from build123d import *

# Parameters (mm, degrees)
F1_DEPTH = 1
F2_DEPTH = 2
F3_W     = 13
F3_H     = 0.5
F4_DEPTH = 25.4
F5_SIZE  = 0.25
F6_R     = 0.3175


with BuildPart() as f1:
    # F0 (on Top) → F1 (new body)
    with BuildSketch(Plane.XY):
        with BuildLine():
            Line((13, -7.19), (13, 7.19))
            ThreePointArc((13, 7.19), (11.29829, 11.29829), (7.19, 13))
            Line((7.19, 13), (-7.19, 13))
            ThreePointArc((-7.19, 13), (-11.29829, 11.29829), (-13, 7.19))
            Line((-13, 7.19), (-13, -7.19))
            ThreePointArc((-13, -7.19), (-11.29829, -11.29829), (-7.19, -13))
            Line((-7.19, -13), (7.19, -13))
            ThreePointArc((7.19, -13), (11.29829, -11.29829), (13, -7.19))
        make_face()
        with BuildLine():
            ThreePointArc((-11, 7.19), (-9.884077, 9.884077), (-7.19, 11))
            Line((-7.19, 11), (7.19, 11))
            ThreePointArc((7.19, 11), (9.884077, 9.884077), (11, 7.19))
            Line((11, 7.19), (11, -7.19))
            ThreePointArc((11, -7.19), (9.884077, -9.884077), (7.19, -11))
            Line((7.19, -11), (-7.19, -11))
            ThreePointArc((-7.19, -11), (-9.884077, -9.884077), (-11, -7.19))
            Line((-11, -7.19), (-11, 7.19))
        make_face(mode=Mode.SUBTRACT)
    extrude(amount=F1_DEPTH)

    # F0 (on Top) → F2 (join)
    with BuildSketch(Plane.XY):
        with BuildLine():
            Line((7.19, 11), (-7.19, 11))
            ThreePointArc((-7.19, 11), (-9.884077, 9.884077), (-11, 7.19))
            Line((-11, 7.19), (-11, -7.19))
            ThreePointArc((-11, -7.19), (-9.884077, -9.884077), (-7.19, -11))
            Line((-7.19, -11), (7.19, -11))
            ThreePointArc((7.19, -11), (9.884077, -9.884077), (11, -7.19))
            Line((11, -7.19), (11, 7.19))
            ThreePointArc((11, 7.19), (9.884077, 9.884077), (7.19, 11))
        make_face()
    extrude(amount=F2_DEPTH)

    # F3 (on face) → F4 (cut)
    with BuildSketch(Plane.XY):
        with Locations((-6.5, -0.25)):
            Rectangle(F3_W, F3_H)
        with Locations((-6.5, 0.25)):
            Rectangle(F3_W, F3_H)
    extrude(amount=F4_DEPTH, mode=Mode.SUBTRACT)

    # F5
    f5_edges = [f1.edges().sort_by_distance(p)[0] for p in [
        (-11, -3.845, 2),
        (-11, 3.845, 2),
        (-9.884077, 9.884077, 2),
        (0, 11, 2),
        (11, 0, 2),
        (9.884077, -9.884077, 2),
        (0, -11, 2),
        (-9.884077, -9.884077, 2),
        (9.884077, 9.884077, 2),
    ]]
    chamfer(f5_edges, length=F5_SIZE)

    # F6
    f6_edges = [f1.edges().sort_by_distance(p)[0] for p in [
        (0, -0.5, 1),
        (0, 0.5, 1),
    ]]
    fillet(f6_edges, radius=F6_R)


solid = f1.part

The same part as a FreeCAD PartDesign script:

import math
import FreeCAD as App
import Part
import Sketcher

V = App.Vector


def edges_at(feature, points):
    """Names of the edges that pass closest to the given points."""
    edges = feature.Shape.Edges
    near = lambda p: min(range(len(edges)), key=lambda i: edges[i].distToShape(Part.Vertex(*p))[0])
    return sorted({f"Edge{near(p) + 1}" for p in points})


def add_polygon(sketch, points):
    """Adds a closed chain of lines whose ends are joined by coincident constraints."""
    first, n = sketch.GeometryCount, len(points)
    for a, b in zip(points, points[1:] + points[:1]):
        sketch.addGeometry(Part.LineSegment(App.Vector(*a, 0), App.Vector(*b, 0)), False)
    for i in range(n):
        sketch.addConstraint(Sketcher.Constraint("Coincident", first + i, 2, first + (i + 1) % n, 1))

doc = App.newDocument("Part")
body = doc.addObject("PartDesign::Body", "Body")

# Sketch on XY plane
sketch1 = doc.addObject("Sketcher::SketchObject", "Sketch")
body.addObject(sketch1)
sketch1.AttachmentSupport = (doc.XY_Plane, [""])
sketch1.MapMode = "FlatFace"
sketch1.addGeometry([
    Part.LineSegment(V(13, -7.19, 0), V(13, 7.19, 0)),  # 0
    Part.ArcOfCircle(Part.Circle(V(7.189999, 7.189999, 0), V(0, 0, 1), 5.810001), math.radians(0.000013), math.radians(89.999987)),  # 1
    Part.LineSegment(V(7.19, 13, 0), V(-7.19, 13, 0)),  # 2
    Part.ArcOfCircle(Part.Circle(V(-7.189999, 7.189999, 0), V(0, 0, 1), 5.810001), math.radians(90.000013), math.radians(179.999987)),  # 3
    Part.LineSegment(V(-13, 7.19, 0), V(-13, -7.19, 0)),  # 4
    Part.ArcOfCircle(Part.Circle(V(-7.189999, -7.189999, 0), V(0, 0, 1), 5.810001), math.radians(-179.999987), math.radians(-90.000013)),  # 5
    Part.LineSegment(V(-7.19, -13, 0), V(7.19, -13, 0)),  # 6
    Part.ArcOfCircle(Part.Circle(V(7.189999, -7.189999, 0), V(0, 0, 1), 5.810001), math.radians(-89.999987), math.radians(-0.000013)),  # 7
    Part.LineSegment(V(-11, -7.19, 0), V(-11, 7.19, 0)),  # 8
    Part.ArcOfCircle(Part.Circle(V(-7.190001, 7.190001, 0), V(0, 0, 1), 3.809999), math.radians(89.999992), math.radians(180.000008)),  # 9
    Part.LineSegment(V(-7.19, 11, 0), V(7.19, 11, 0)),  # 10
    Part.ArcOfCircle(Part.Circle(V(7.190001, 7.190001, 0), V(0, 0, 1), 3.809999), math.radians(-0.000008), math.radians(90.000008)),  # 11
    Part.LineSegment(V(11, 7.19, 0), V(11, -7.19, 0)),  # 12
    Part.ArcOfCircle(Part.Circle(V(7.190001, -7.190001, 0), V(0, 0, 1), 3.809999), math.radians(-90.000008), math.radians(0.000008)),  # 13
    Part.LineSegment(V(7.19, -11, 0), V(-7.19, -11, 0)),  # 14
    Part.ArcOfCircle(Part.Circle(V(-7.190001, -7.190001, 0), V(0, 0, 1), 3.809999), math.radians(179.999992), math.radians(270.000008)),  # 15
], False)
sketch1.addConstraint([
    Sketcher.Constraint("Tangent", 0, 2, 1, 1),
    Sketcher.Constraint("Tangent", 1, 2, 2, 1),
    Sketcher.Constraint("Tangent", 2, 2, 3, 1),
    Sketcher.Constraint("Tangent", 3, 2, 4, 1),
    Sketcher.Constraint("Tangent", 4, 2, 5, 1),
    Sketcher.Constraint("Tangent", 5, 2, 6, 1),
    Sketcher.Constraint("Tangent", 6, 2, 7, 1),
    Sketcher.Constraint("Tangent", 7, 2, 0, 1),
    Sketcher.Constraint("Tangent", 8, 2, 9, 2),
    Sketcher.Constraint("Tangent", 9, 1, 10, 1),
    Sketcher.Constraint("Tangent", 10, 2, 11, 2),
    Sketcher.Constraint("Tangent", 11, 1, 12, 1),
    Sketcher.Constraint("Tangent", 12, 2, 13, 2),
    Sketcher.Constraint("Tangent", 13, 1, 14, 1),
    Sketcher.Constraint("Tangent", 14, 2, 15, 2),
    Sketcher.Constraint("Tangent", 15, 1, 8, 1),
    Sketcher.Constraint("Vertical", 0),
    Sketcher.Constraint("Horizontal", 2),
    Sketcher.Constraint("Vertical", 4),
    Sketcher.Constraint("Horizontal", 6),
    Sketcher.Constraint("Vertical", 8),
    Sketcher.Constraint("Horizontal", 10),
    Sketcher.Constraint("Vertical", 12),
    Sketcher.Constraint("Horizontal", 14),
    Sketcher.Constraint("Coincident", 9, 3, 3, 3),
    Sketcher.Constraint("Coincident", 11, 3, 1, 3),
    Sketcher.Constraint("Coincident", 13, 3, 7, 3),
    Sketcher.Constraint("Equal", 1, 3),
    Sketcher.Constraint("Equal", 3, 5),
    Sketcher.Constraint("Equal", 5, 7),
    Sketcher.Constraint("Equal", 13, 15),
    Sketcher.Constraint("Symmetric", 1, 3, 5, 3, -1, 1),
    Sketcher.Constraint("Equal", 14, 0),
    Sketcher.Constraint("Radius", 1, 5.810001),
    Sketcher.Constraint("Radius", 9, 3.809999),
    Sketcher.Constraint("DistanceX", -1, 1, 0, 2, 13.0),
])
pad1 = doc.addObject("PartDesign::Pad", "Pad")
body.addObject(pad1)
pad1.Profile = sketch1
pad1.Length = 1

# Sketch on XY plane
sketch2 = doc.addObject("Sketcher::SketchObject", "Sketch001")
body.addObject(sketch2)
sketch2.AttachmentSupport = (doc.XY_Plane, [""])
sketch2.MapMode = "FlatFace"
sketch2.addGeometry([
    Part.LineSegment(V(7.19, 11, 0), V(-7.19, 11, 0)),  # 0
    Part.ArcOfCircle(Part.Circle(V(-7.190001, 7.190001, 0), V(0, 0, 1), 3.809999), math.radians(89.999992), math.radians(180.000008)),  # 1
    Part.LineSegment(V(-11, 7.19, 0), V(-11, -7.19, 0)),  # 2
    Part.ArcOfCircle(Part.Circle(V(-7.190001, -7.190001, 0), V(0, 0, 1), 3.809999), math.radians(179.999992), math.radians(270.000008)),  # 3
    Part.LineSegment(V(-7.19, -11, 0), V(7.19, -11, 0)),  # 4
    Part.ArcOfCircle(Part.Circle(V(7.190001, -7.190001, 0), V(0, 0, 1), 3.809999), math.radians(-90.000008), math.radians(0.000008)),  # 5
    Part.LineSegment(V(11, -7.19, 0), V(11, 7.19, 0)),  # 6
    Part.ArcOfCircle(Part.Circle(V(7.190001, 7.190001, 0), V(0, 0, 1), 3.809999), math.radians(-0.000008), math.radians(90.000008)),  # 7
], False)
sketch2.addConstraint([
    Sketcher.Constraint("Tangent", 0, 2, 1, 1),
    Sketcher.Constraint("Tangent", 1, 2, 2, 1),
    Sketcher.Constraint("Tangent", 2, 2, 3, 1),
    Sketcher.Constraint("Tangent", 3, 2, 4, 1),
    Sketcher.Constraint("Tangent", 4, 2, 5, 1),
    Sketcher.Constraint("Tangent", 5, 2, 6, 1),
    Sketcher.Constraint("Tangent", 6, 2, 7, 1),
    Sketcher.Constraint("Tangent", 7, 2, 0, 1),
    Sketcher.Constraint("Horizontal", 0),
    Sketcher.Constraint("Vertical", 2),
    Sketcher.Constraint("Horizontal", 4),
    Sketcher.Constraint("Vertical", 6),
    Sketcher.Constraint("Equal", 1, 3),
    Sketcher.Constraint("Equal", 3, 5),
    Sketcher.Constraint("Equal", 5, 7),
    Sketcher.Constraint("Symmetric", 1, 3, 5, 3, -1, 1),
    Sketcher.Constraint("Equal", 4, 2),
    Sketcher.Constraint("Radius", 1, 3.809999),
    Sketcher.Constraint("DistanceY", -1, 1, 0, 2, 11.0),
])
pad2 = doc.addObject("PartDesign::Pad", "Pad001")
body.addObject(pad2)
pad2.Profile = sketch2
pad2.Length = 2

# Sketch on XY plane
sketch3 = doc.addObject("Sketcher::SketchObject", "Sketch002")
body.addObject(sketch3)
sketch3.AttachmentSupport = (doc.XY_Plane, [""])
sketch3.MapMode = "FlatFace"
add_polygon(sketch3, [(-13, -0.5), (0, -0.5), (0, 0.5), (-13, 0.5)])  # lines 0-3
sketch3.addConstraint([
    Sketcher.Constraint("Horizontal", 0),
    Sketcher.Constraint("Vertical", 1),
    Sketcher.Constraint("Horizontal", 2),
    Sketcher.Constraint("Vertical", 3),
    Sketcher.Constraint("Symmetric", 0, 2, 1, 2, -1, 1),
    Sketcher.Constraint("DistanceX", 0, 1, 0, 2, 13.0),
    Sketcher.Constraint("DistanceY", 1, 1, 1, 2, 1.0),
])
pocket1 = doc.addObject("PartDesign::Pocket", "Pocket")
body.addObject(pocket1)
pocket1.Profile = sketch3
pocket1.Length = 25.4
pocket1.Reversed = True
doc.recompute()

chamfer = doc.addObject("PartDesign::Chamfer", "Chamfer")
body.addObject(chamfer)
chamfer.Base = (pocket1, edges_at(pocket1, [
    (-11, -3.845, 2),
    (-11, 3.845, 2),
    (-9.884, 9.884, 2),
    (0, 11, 2),
    (11, 0, 2),
    (9.884, -9.884, 2),
    (0, -11, 2),
    (-9.884, -9.884, 2),
    (9.884, 9.884, 2),
]))
chamfer.Size = 0.25
doc.recompute()

fillet = doc.addObject("PartDesign::Fillet", "Fillet")
body.addObject(fillet)
fillet.Base = (chamfer, edges_at(chamfer, [(0, -0.5, 1), (0, 0.5, 1)]))
fillet.Radius = 0.3175

doc.recompute()
